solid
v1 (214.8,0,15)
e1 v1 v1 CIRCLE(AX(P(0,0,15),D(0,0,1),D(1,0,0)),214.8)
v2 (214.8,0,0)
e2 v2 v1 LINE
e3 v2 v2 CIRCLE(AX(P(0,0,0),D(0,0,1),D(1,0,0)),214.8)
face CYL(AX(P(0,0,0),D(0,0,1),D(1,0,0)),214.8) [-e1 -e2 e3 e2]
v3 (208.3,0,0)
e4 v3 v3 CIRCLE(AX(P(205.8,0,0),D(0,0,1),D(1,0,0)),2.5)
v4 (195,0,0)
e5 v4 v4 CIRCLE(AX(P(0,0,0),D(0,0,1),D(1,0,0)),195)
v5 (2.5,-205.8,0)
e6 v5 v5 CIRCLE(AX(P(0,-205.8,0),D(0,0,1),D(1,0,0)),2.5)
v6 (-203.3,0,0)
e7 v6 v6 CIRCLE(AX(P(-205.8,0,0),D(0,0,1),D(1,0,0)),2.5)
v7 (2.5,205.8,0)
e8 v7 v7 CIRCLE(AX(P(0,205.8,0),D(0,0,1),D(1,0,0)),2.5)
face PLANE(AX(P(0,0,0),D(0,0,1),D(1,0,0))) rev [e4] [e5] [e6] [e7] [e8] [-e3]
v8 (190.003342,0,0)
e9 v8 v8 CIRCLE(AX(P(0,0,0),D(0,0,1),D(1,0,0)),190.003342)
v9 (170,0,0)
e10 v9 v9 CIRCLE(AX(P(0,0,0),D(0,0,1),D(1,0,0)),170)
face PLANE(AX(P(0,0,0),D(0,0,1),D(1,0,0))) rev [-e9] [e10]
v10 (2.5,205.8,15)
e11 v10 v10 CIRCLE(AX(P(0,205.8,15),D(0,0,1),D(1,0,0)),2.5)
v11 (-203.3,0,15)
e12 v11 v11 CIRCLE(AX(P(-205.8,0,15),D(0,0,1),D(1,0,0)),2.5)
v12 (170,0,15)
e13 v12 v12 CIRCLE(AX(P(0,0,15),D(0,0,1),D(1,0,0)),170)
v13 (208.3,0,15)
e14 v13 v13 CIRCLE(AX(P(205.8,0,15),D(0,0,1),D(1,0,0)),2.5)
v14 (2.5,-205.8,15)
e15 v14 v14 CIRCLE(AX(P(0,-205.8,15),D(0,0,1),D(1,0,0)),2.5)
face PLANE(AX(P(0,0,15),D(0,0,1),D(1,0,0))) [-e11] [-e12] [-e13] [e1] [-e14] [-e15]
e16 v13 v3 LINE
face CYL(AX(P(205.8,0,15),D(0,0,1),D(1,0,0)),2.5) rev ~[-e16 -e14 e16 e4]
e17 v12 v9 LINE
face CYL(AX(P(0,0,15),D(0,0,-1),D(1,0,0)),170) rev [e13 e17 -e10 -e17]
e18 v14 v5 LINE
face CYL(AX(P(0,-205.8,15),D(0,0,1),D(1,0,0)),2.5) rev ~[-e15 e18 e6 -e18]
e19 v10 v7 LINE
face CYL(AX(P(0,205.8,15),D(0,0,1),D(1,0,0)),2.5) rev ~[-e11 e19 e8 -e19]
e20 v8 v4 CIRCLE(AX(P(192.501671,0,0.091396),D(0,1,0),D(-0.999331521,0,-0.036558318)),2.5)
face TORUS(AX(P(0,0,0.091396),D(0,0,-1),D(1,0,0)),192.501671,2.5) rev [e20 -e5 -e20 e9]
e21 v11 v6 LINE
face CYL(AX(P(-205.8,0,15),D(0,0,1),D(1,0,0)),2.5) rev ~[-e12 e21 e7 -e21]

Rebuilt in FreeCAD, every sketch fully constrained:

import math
import FreeCAD as App
import Part
import Sketcher
from FreeCAD import Vector
Q = App.Units.Quantity

doc = App.newDocument("Part")
params = doc.addObject("Spreadsheet::Sheet", "Params")
for row, (alias, value) in enumerate([
    ("sketch1_radius", "2.5 mm"),
    ("sketch1_height", "15 mm"),
    ("sketch1_width", "19.8 mm"),
    ("sketch1_width2", "44.8 mm"),
    ("revolution_angle", "360 deg"),
    ("sketch2_diameter", "5 mm"),
    ("pocket1_length", "25 mm"),
], start=1):
    params.set(f"A{row}", alias)
    params.set(f"B{row}", "=" + value)
    params.setAlias(f"B{row}", alias)

body = doc.addObject("PartDesign::Body", "Body")

# Sketch on XZ plane
sketch1 = doc.addObject("Sketcher::SketchObject", "Sketch")
body.addObject(sketch1)
sketch1.AttachmentSupport = (doc.XZ_Plane, [""])
sketch1.MapMode = "FlatFace"
sketch1.addGeometry([
    Part.LineSegment(Vector(195, 0, 0), Vector(214.8, 0, 0)),  # 0
    Part.LineSegment(Vector(214.8, 0, 0), Vector(214.8, 15, 0)),  # 1
    Part.LineSegment(Vector(214.8, 15, 0), Vector(170, 15, 0)),  # 2
    Part.LineSegment(Vector(170, 15, 0), Vector(170, 0, 0)),  # 3
    Part.LineSegment(Vector(170, 0, 0), Vector(190, 0, 0)),  # 4
    Part.ArcOfCircle(Part.Circle(Vector(192.5, 0.1, 0), Vector(0, 0, 1), 2.5), math.radians(-2), math.radians(182)),  # 5
], False)
sketch1.addConstraint([
    Sketcher.Constraint("Coincident", 0, 2, 1, 1),
    Sketcher.Constraint("Coincident", 1, 2, 2, 1),
    Sketcher.Constraint("Coincident", 2, 2, 3, 1),
    Sketcher.Constraint("Coincident", 3, 2, 4, 1),
    Sketcher.Constraint("Coincident", 4, 2, 5, 2),
    Sketcher.Constraint("Coincident", 5, 1, 0, 1),
    Sketcher.Constraint("Horizontal", 0),
    Sketcher.Constraint("Vertical", 1),
    Sketcher.Constraint("Horizontal", 2),
    Sketcher.Constraint("Vertical", 3),
    Sketcher.Constraint("Horizontal", 4),
    Sketcher.Constraint("PointOnObject", 0, 2, -1),
    Sketcher.Constraint("PointOnObject", 3, 2, -1),
    Sketcher.Constraint("Radius", 5, Q("2.5 mm")),
    Sketcher.Constraint("DistanceY", 1, 1, 1, 2, Q("15 mm")),
    Sketcher.Constraint("DistanceX", 0, 1, 0, 2, Q("19.8 mm")),
    Sketcher.Constraint("DistanceX", 2, 2, 2, 1, Q("44.8 mm")),
    Sketcher.Constraint("DistanceX", -1, 1, 2, 2, Q("170 mm")),
    Sketcher.Constraint("DistanceX", 4, 1, 4, 2, Q("20.003342 mm")),
])
sketch1.setExpression("Constraints[13]", "Params.sketch1_radius")
sketch1.setExpression("Constraints[14]", "Params.sketch1_height")
sketch1.setExpression("Constraints[15]", "Params.sketch1_width")
sketch1.setExpression("Constraints[16]", "Params.sketch1_width2")
revolution = doc.addObject("PartDesign::Revolution", "Revolution")
body.addObject(revolution)
revolution.Profile = sketch1
revolution.ReferenceAxis = (sketch1, ["V_Axis"])
revolution.setExpression("Angle", "Params.revolution_angle")

# Sketch on XY plane
sketch2 = doc.addObject("Sketcher::SketchObject", "Sketch001")
body.addObject(sketch2)
sketch2.AttachmentSupport = (doc.XY_Plane, [""])
sketch2.MapMode = "FlatFace"
sketch2.AttachmentOffset = App.Placement(Vector(0, 0, 15), App.Rotation())
sketch2.addGeometry([
    Part.Circle(Vector(205.8, 0, 0), Vector(0, 0, 1), 2.5),
    Part.Circle(Vector(0, 205.8, 0), Vector(0, 0, 1), 2.5),
    Part.Circle(Vector(-205.8, 0, 0), Vector(0, 0, 1), 2.5),
    Part.Circle(Vector(0, -205.8, 0), Vector(0, 0, 1), 2.5),
], False)
sketch2.addConstraint([
    Sketcher.Constraint("Equal", 0, 1),
    Sketcher.Constraint("Equal", 1, 2),
    Sketcher.Constraint("Equal", 2, 3),
    Sketcher.Constraint("Symmetric", 0, 3, 2, 3, -1, 1),
    Sketcher.Constraint("Symmetric", 1, 3, 3, 3, -1, 1),
    Sketcher.Constraint("PointOnObject", 0, 3, -1),
    Sketcher.Constraint("PointOnObject", 1, 3, -2),
    Sketcher.Constraint("Diameter", 0, Q("5 mm")),
    Sketcher.Constraint("DistanceX", -1, 1, 0, 3, Q("205.8 mm")),
    Sketcher.Constraint("DistanceY", -1, 1, 1, 3, Q("205.8 mm")),
])
sketch2.setExpression("Constraints[7]", "Params.sketch2_diameter")
pocket1 = doc.addObject("PartDesign::Pocket", "Pocket")
body.addObject(pocket1)
pocket1.Profile = sketch2
pocket1.setExpression("Length", "Params.pocket1_length")

doc.recompute()
